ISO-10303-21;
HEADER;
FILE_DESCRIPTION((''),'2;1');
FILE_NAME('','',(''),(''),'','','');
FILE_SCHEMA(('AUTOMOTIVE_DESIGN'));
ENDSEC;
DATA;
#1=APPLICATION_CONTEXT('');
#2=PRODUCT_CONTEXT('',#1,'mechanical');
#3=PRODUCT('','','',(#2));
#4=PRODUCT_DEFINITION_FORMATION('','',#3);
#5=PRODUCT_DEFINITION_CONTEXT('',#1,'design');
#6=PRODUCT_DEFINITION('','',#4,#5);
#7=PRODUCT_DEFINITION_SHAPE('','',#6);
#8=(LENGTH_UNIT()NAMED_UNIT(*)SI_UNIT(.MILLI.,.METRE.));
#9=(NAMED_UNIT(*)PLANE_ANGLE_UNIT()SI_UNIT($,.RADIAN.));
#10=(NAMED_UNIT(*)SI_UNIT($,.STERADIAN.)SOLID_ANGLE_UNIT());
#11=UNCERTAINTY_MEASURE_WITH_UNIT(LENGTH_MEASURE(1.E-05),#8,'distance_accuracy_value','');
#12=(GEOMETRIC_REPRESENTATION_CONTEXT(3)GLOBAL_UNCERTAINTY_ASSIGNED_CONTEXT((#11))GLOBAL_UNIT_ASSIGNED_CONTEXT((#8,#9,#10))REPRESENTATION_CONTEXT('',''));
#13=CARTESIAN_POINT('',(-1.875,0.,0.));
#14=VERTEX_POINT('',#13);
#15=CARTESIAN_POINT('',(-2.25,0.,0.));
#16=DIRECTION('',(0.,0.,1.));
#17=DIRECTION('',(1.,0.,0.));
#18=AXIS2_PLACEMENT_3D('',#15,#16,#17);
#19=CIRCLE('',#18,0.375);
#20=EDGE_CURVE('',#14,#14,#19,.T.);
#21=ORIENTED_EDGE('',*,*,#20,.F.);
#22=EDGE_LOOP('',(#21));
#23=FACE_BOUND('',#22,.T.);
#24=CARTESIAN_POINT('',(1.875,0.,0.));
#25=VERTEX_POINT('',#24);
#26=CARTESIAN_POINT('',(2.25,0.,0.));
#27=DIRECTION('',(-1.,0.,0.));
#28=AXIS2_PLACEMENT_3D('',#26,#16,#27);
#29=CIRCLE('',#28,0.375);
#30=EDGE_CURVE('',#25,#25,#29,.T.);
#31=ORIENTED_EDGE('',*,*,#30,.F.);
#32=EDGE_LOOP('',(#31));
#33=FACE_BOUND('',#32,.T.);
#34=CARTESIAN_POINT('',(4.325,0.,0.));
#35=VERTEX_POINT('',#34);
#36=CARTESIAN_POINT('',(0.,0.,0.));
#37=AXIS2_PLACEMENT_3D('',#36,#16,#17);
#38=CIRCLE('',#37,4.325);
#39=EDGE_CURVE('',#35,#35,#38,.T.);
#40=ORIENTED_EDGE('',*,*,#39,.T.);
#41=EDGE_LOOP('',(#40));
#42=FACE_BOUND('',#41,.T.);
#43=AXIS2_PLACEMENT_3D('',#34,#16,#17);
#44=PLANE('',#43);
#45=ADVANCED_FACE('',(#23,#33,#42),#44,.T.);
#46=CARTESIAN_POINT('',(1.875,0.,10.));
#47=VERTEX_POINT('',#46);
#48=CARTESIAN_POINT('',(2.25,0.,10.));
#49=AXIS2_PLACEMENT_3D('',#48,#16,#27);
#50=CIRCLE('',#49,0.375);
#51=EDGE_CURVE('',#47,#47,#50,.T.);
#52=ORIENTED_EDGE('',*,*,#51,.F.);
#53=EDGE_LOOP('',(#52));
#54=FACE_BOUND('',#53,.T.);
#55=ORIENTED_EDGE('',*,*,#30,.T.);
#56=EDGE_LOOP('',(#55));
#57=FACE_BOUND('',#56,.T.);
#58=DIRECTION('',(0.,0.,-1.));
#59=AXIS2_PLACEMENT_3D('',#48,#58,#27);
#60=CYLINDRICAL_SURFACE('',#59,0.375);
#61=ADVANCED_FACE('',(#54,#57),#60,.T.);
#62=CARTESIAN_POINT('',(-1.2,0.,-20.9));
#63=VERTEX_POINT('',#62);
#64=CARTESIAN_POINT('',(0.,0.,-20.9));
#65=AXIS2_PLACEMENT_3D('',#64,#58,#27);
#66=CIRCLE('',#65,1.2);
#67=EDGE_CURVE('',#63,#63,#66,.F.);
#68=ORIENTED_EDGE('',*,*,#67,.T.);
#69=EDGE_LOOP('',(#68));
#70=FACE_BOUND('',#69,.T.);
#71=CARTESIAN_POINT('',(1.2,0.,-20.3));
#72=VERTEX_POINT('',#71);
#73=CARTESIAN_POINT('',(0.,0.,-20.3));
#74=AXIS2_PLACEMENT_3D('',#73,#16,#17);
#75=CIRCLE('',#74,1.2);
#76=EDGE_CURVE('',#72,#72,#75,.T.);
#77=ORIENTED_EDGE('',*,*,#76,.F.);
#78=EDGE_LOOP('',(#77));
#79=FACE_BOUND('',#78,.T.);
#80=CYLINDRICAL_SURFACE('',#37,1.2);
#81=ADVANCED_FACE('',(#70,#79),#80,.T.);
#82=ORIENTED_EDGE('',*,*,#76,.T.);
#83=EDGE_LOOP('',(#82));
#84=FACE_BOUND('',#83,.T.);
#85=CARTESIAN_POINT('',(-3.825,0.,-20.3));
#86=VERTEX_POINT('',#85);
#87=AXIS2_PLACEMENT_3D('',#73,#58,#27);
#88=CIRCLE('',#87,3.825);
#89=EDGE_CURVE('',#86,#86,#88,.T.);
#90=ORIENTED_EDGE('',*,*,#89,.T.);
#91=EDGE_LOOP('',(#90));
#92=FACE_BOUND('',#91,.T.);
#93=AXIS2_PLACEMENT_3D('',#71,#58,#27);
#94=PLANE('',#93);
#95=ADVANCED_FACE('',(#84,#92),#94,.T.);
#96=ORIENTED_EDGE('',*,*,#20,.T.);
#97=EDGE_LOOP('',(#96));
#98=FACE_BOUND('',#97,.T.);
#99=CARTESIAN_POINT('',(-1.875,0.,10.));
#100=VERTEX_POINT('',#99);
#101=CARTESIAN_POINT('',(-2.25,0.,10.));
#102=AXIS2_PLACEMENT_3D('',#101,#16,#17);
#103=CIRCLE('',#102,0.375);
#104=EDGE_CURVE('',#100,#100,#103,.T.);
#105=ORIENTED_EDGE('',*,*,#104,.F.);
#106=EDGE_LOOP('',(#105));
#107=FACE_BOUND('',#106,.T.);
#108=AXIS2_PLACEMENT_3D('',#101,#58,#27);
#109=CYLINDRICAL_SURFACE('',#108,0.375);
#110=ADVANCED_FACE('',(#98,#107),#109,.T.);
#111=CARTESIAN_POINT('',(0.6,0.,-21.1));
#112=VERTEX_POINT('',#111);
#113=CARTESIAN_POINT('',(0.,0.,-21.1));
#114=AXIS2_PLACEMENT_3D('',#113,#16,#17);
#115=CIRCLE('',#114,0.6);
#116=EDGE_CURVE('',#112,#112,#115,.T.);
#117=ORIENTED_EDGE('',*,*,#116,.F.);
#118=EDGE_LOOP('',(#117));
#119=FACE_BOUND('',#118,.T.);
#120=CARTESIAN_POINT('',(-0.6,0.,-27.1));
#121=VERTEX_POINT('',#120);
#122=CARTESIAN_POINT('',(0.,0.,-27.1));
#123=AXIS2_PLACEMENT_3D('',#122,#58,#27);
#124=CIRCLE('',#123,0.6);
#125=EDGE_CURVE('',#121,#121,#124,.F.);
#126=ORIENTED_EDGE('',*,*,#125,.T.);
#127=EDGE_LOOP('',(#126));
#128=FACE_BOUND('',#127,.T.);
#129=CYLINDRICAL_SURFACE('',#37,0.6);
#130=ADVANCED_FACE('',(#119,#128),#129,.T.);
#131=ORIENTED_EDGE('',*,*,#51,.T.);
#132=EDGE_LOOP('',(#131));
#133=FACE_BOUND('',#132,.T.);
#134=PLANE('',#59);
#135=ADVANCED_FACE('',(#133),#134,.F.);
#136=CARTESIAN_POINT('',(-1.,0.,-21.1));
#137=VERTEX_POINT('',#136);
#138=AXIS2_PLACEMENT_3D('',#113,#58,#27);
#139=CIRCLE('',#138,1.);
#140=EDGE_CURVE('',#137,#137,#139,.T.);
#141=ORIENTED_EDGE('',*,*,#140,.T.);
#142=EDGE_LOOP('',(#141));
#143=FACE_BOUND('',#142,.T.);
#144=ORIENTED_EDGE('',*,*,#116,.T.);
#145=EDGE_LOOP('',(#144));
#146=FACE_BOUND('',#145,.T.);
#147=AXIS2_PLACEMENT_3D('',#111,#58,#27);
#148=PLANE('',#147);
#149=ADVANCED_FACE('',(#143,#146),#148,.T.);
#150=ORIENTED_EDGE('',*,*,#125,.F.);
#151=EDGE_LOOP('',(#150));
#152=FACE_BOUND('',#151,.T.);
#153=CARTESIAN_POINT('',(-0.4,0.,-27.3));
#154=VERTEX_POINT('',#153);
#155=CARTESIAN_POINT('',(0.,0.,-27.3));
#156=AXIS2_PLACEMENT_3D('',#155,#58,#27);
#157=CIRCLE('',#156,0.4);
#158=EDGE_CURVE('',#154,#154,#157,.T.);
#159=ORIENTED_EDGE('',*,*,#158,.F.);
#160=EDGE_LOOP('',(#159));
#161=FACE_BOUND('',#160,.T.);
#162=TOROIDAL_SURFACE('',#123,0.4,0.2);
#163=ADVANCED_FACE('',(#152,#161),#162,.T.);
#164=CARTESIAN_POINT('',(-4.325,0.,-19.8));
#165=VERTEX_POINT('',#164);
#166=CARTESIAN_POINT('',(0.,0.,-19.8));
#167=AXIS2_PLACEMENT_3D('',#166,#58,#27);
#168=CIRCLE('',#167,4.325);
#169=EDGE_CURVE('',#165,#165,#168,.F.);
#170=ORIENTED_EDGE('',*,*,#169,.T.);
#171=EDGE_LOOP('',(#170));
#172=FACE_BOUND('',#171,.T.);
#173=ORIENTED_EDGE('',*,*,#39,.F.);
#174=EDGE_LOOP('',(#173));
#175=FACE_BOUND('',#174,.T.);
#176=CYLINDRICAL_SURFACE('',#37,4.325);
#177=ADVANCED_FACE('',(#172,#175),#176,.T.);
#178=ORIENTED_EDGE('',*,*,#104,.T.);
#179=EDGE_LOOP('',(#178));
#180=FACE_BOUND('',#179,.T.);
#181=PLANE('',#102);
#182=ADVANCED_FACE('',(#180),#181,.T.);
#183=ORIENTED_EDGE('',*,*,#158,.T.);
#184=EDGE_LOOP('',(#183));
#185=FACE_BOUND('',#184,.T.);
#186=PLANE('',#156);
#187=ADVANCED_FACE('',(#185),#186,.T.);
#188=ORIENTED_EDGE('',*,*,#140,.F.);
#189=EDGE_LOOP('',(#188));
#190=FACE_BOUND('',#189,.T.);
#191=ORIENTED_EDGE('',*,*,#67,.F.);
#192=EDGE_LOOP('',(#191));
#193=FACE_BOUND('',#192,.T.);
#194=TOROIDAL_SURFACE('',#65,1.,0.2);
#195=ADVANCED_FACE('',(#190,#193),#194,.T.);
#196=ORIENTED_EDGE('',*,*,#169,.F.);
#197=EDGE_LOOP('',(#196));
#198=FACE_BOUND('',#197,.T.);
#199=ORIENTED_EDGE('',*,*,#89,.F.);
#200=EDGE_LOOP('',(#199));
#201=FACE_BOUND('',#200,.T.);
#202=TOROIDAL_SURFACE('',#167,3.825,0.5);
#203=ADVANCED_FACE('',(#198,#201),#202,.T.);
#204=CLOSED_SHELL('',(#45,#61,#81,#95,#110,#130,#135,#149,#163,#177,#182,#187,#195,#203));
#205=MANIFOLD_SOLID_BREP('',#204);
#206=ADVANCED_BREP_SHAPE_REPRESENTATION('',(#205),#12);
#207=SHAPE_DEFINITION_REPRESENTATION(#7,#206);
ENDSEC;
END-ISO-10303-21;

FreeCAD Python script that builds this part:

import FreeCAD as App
import Part
import Sketcher
Q = App.Units.Quantity


def edges_at(feature, points):
    """Names of the edges that pass closest to the given points."""
    edges = feature.Shape.Edges
    near = lambda p: min(range(len(edges)), key=lambda i: edges[i].distToShape(Part.Vertex(*p))[0])
    return sorted({f"Edge{near(p) + 1}" for p in points})

doc = App.newDocument("Part")
body = doc.addObject("PartDesign::Body", "Body")

# Sketch on XZ plane
sketch1 = doc.addObject("Sketcher::SketchObject", "Sketch")
body.addObject(sketch1)
sketch1.AttachmentSupport = (doc.XZ_Plane, [""])
sketch1.MapMode = "FlatFace"
sketch1.addGeometry([
    Part.LineSegment(App.Vector(4.325, 0, 0), App.Vector(4.325, -20.3, 0)),  # 0
    Part.LineSegment(App.Vector(4.325, -20.3, 0), App.Vector(1.2, -20.3, 0)),  # 1
    Part.LineSegment(App.Vector(1.2, -20.3, 0), App.Vector(1.2, -21.1, 0)),  # 2
    Part.LineSegment(App.Vector(1.2, -21.1, 0), App.Vector(0.6, -21.1, 0)),  # 3
    Part.LineSegment(App.Vector(0.6, -21.1, 0), App.Vector(0.6, -27.3, 0)),  # 4
    Part.LineSegment(App.Vector(0.6, -27.3, 0), App.Vector(0, -27.3, 0)),  # 5
    Part.LineSegment(App.Vector(0, -27.3, 0), App.Vector(0, 0, 0)),  # 6
    Part.LineSegment(App.Vector(0, 0, 0), App.Vector(4.325, 0, 0)),  # 7
], False)
sketch1.addConstraint([
    Sketcher.Constraint("Coincident", 0, 2, 1, 1),
    Sketcher.Constraint("Coincident", 1, 2, 2, 1),
    Sketcher.Constraint("Coincident", 2, 2, 3, 1),
    Sketcher.Constraint("Coincident", 3, 2, 4, 1),
    Sketcher.Constraint("Coincident", 4, 2, 5, 1),
    Sketcher.Constraint("Coincident", 5, 2, 6, 1),
    Sketcher.Constraint("Coincident", 6, 2, 7, 1),
    Sketcher.Constraint("Coincident", 7, 2, 0, 1),
    Sketcher.Constraint("Vertical", 0),
    Sketcher.Constraint("Horizontal", 1),
    Sketcher.Constraint("Vertical", 2),
    Sketcher.Constraint("Horizontal", 3),
    Sketcher.Constraint("Vertical", 4),
    Sketcher.Constraint("Horizontal", 5),
    Sketcher.Constraint("Vertical", 6),
    Sketcher.Constraint("Horizontal", 7),
    Sketcher.Constraint("Coincident", 6, 2, -1, 1),
    Sketcher.Constraint("Equal", 3, 5),
    Sketcher.Constraint("DistanceX", 3, 2, 3, 1, Q("0.6 mm")),
    Sketcher.Constraint("DistanceY", 0, 2, 0, 1, Q("20.3 mm")),
    Sketcher.Constraint("DistanceY", 2, 2, 2, 1, Q("0.8 mm")),
    Sketcher.Constraint("DistanceY", 4, 2, 4, 1, Q("6.2 mm")),
    Sketcher.Constraint("DistanceX", 1, 2, 1, 1, Q("3.125 mm")),
])
revolution = doc.addObject("PartDesign::Revolution", "Revolution")
body.addObject(revolution)
revolution.Profile = sketch1
revolution.ReferenceAxis = (sketch1, ["V_Axis"])
revolution.Angle = 360
doc.recompute()

fillet = doc.addObject("PartDesign::Fillet", "Fillet")
body.addObject(fillet)
fillet.Base = (revolution, edges_at(revolution, [(-4.325, 0, -20.3)]))
fillet.Radius = 0.5
doc.recompute()

fillet2 = doc.addObject("PartDesign::Fillet", "Fillet001")
body.addObject(fillet2)
fillet2.Base = (fillet, edges_at(fillet, [(-1.2, 0, -21.1), (-0.6, 0, -27.3)]))
fillet2.Radius = 0.2

# Sketch on XY plane
sketch2 = doc.addObject("Sketcher::SketchObject", "Sketch001")
body.addObject(sketch2)
sketch2.AttachmentSupport = (doc.XY_Plane, [""])
sketch2.MapMode = "FlatFace"
sketch2.addGeometry([
    Part.Circle(App.Vector(-2.25, 0, 0), App.Vector(0, 0, 1), 0.375),
    Part.Circle(App.Vector(2.25, 0, 0), App.Vector(0, 0, 1), 0.375),
], False)
sketch2.addConstraint([
    Sketcher.Constraint("Equal", 0, 1),
    Sketcher.Constraint("Symmetric", 0, 3, 1, 3, -1, 1),
    Sketcher.Constraint("PointOnObject", 0, 3, -1),
    Sketcher.Constraint("Diameter", 0, Q("0.75 mm")),
    Sketcher.Constraint("DistanceX", 0, 3, 1, 3, Q("4.5 mm")),
])
pad1 = doc.addObject("PartDesign::Pad", "Pad")
body.addObject(pad1)
pad1.Profile = sketch2
pad1.Length = 10

doc.recompute()
